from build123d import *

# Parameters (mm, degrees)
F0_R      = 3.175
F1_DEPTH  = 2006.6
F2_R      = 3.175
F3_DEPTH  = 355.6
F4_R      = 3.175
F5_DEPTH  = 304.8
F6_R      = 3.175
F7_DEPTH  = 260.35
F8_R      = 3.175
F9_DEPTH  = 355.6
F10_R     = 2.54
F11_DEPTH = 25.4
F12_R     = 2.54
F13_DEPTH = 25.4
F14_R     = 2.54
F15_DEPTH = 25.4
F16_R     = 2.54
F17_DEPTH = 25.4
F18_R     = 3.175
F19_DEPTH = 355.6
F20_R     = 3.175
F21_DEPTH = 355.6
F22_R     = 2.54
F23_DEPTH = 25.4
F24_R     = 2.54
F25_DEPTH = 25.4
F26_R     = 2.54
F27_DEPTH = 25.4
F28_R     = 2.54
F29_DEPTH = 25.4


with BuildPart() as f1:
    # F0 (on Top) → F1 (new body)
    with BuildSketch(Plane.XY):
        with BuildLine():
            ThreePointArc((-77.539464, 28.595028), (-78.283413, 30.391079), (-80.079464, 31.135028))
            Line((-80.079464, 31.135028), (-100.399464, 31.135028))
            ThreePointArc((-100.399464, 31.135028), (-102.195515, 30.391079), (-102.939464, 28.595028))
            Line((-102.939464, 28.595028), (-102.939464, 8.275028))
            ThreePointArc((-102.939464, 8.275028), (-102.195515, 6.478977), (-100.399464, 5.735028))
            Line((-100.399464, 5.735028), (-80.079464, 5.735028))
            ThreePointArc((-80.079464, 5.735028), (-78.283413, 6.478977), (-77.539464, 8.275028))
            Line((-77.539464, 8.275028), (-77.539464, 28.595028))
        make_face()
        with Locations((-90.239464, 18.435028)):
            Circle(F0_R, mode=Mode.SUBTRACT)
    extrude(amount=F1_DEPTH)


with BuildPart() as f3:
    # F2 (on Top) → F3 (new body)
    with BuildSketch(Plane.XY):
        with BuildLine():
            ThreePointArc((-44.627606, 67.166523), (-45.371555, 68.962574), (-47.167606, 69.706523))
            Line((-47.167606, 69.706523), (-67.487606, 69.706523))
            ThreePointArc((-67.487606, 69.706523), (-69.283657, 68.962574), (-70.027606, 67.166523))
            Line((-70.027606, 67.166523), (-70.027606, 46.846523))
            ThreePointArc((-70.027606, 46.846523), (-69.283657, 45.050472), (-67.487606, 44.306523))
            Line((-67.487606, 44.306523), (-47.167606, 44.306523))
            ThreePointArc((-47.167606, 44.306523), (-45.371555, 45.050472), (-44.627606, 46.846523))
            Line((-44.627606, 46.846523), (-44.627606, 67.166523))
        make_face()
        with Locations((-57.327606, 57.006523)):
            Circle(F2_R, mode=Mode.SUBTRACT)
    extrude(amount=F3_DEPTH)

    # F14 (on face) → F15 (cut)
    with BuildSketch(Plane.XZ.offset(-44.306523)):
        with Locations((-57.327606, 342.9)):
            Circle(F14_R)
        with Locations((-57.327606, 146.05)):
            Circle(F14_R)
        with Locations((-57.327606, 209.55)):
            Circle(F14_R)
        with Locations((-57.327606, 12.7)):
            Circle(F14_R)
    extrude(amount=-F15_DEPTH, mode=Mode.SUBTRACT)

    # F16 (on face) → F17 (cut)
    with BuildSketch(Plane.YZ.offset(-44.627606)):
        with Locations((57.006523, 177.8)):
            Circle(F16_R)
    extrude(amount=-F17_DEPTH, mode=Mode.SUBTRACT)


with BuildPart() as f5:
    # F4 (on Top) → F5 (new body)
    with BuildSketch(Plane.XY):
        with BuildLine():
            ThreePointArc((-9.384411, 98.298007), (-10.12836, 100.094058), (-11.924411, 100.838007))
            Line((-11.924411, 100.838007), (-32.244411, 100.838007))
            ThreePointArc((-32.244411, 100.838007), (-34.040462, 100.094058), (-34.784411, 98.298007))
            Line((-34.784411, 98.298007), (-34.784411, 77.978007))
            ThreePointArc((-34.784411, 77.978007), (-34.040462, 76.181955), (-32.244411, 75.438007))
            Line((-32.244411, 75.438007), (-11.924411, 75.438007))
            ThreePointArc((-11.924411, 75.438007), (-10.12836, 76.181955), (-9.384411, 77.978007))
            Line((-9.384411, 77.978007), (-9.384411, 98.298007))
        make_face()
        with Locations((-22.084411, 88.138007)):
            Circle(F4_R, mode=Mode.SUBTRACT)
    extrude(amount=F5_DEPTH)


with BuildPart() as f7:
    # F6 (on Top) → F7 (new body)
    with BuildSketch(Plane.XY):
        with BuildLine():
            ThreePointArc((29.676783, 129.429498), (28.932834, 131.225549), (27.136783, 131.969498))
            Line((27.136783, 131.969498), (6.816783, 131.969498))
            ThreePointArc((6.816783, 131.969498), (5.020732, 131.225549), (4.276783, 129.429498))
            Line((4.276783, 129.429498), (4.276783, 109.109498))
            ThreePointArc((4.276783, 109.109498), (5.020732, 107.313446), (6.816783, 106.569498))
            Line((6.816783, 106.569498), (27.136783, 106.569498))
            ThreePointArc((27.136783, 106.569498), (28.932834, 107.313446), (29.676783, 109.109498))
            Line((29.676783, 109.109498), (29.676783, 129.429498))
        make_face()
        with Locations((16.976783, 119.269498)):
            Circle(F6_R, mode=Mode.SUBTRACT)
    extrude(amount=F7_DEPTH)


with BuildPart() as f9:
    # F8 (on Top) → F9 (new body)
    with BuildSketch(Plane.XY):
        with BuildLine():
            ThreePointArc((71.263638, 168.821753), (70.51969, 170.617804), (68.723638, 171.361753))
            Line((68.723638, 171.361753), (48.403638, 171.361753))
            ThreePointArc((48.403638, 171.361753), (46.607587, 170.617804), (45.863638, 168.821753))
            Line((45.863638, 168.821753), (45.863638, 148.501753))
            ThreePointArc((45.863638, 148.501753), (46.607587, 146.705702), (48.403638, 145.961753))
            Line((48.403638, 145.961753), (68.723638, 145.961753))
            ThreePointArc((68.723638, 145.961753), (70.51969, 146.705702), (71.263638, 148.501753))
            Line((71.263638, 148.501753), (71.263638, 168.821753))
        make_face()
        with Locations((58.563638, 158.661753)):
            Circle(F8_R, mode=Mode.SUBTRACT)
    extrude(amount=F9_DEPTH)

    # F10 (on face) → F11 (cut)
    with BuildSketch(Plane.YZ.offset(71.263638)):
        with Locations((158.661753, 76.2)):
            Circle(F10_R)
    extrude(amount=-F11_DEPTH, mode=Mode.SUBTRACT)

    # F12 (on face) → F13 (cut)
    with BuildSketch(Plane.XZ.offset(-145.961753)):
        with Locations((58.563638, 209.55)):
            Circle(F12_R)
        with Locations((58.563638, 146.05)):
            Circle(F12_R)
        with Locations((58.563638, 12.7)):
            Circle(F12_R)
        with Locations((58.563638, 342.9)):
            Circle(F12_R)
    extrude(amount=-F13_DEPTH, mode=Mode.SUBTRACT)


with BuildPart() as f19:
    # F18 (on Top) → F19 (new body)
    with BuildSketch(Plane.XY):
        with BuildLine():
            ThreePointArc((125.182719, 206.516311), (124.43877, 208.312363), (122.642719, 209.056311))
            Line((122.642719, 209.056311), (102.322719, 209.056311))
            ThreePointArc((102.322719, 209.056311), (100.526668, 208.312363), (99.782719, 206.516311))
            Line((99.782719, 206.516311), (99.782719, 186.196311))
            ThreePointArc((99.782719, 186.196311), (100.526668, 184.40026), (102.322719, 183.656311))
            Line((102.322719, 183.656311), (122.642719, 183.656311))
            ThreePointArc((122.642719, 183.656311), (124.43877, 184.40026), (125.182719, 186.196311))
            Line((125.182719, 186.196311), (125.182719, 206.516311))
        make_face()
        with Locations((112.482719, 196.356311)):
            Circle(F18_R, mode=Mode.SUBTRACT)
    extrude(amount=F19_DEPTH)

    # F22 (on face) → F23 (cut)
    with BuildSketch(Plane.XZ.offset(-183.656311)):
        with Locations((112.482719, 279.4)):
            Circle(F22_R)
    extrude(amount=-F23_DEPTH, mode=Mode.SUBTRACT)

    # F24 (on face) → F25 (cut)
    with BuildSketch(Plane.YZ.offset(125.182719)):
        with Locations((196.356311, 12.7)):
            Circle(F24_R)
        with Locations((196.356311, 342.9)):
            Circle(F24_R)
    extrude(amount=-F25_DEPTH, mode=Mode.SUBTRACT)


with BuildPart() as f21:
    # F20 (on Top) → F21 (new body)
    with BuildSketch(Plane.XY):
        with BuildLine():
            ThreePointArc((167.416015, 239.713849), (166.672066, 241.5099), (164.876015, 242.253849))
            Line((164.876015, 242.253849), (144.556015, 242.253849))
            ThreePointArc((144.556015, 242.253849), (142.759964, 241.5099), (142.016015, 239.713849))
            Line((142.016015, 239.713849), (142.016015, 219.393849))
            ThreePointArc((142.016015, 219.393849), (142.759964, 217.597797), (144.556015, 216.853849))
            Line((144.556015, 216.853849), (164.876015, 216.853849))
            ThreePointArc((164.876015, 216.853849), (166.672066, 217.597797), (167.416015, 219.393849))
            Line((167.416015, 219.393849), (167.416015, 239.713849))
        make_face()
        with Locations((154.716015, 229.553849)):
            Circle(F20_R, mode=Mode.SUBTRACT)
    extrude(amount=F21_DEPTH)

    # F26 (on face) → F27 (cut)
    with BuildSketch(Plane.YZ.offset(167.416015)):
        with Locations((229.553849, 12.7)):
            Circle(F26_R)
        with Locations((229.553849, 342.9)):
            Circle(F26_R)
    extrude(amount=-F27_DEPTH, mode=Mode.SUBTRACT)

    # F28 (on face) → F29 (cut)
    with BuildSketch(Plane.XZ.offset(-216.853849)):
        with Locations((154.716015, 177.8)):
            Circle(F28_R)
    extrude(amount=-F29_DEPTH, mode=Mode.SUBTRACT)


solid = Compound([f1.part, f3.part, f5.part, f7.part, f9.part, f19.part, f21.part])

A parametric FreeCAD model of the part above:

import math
import FreeCAD as App
import Part
import Sketcher
from FreeCAD import Vector
Q = App.Units.Quantity

doc = App.newDocument("Part")
body = doc.addObject("PartDesign::Body", "Body")

sketch1 = doc.addObject("Sketcher::SketchObject", "Sketch")
body.addObject(sketch1)
sketch1.AttachmentSupport = (doc.XY_Plane, [""])
sketch1.MapMode = "FlatFace"
sketch1.addGeometry(Part.ArcOfCircle(Part.Circle(Vector(-80.079465, 28.595027, 0), Vector(0, 0, 1), 2.540001), math.radians(0.000017), math.radians(89.999983)), False)
sketch1.addGeometry(Part.LineSegment(Vector(-80.079464, 31.135028, 0), Vector(-100.399464, 31.135028, 0)), False)
sketch1.addGeometry(Part.ArcOfCircle(Part.Circle(Vector(-100.399463, 28.595027, 0), Vector(0, 0, 1), 2.540001), math.radians(90.000017), math.radians(179.999983)), False)
sketch1.addGeometry(Part.LineSegment(Vector(-102.939464, 28.595028, 0), Vector(-102.939464, 8.275028, 0)), False)
sketch1.addGeometry(Part.ArcOfCircle(Part.Circle(Vector(-100.399463, 8.275029, 0), Vector(0, 0, 1), 2.540001), math.radians(-179.999983), math.radians(-90.000017)), False)
sketch1.addGeometry(Part.LineSegment(Vector(-100.399464, 5.735028, 0), Vector(-80.079464, 5.735028, 0)), False)
sketch1.addGeometry(Part.ArcOfCircle(Part.Circle(Vector(-80.079465, 8.275029, 0), Vector(0, 0, 1), 2.540001), math.radians(-89.999983), math.radians(-0.000017)), False)
sketch1.addGeometry(Part.LineSegment(Vector(-77.539464, 8.275028, 0), Vector(-77.539464, 28.595028, 0)), False)
sketch1.addGeometry(Part.Circle(Vector(-90.239464, 18.435028, 0), Vector(0, 0, 1), 3.175), False)
sketch1.addConstraint(Sketcher.Constraint("Tangent", 0, 2, 1, 1))
sketch1.addConstraint(Sketcher.Constraint("Tangent", 1, 2, 2, 1))
sketch1.addConstraint(Sketcher.Constraint("Tangent", 2, 2, 3, 1))
sketch1.addConstraint(Sketcher.Constraint("Tangent", 3, 2, 4, 1))
sketch1.addConstraint(Sketcher.Constraint("Tangent", 4, 2, 5, 1))
sketch1.addConstraint(Sketcher.Constraint("Tangent", 5, 2, 6, 1))
sketch1.addConstraint(Sketcher.Constraint("Tangent", 6, 2, 7, 1))
sketch1.addConstraint(Sketcher.Constraint("Tangent", 7, 2, 0, 1))
sketch1.addConstraint(Sketcher.Constraint("Horizontal", 1))
sketch1.addConstraint(Sketcher.Constraint("Vertical", 3))
sketch1.addConstraint(Sketcher.Constraint("Horizontal", 5))
sketch1.addConstraint(Sketcher.Constraint("Vertical", 7))
sketch1.addConstraint(Sketcher.Constraint("Equal", 0, 2))
sketch1.addConstraint(Sketcher.Constraint("Equal", 2, 4))
sketch1.addConstraint(Sketcher.Constraint("Equal", 4, 6))
sketch1.addConstraint(Sketcher.Constraint("Equal", 5, 3))
sketch1.addConstraint(Sketcher.Constraint("Radius", 0, Q("0.1 in")))
sketch1.addConstraint(Sketcher.Constraint("Diameter", 8, Q("0.25 in")))
sketch1.addConstraint(Sketcher.Constraint("DistanceX", 1, 2, 1, 1, Q("0.8 in")))
sketch1.addConstraint(Sketcher.Constraint("DistanceX", 4, 3, 8, 3, Q("0.4 in")))
sketch1.addConstraint(Sketcher.Constraint("DistanceY", 4, 3, 8, 3, Q("0.4 in")))
sketch1.addConstraint(Sketcher.Constraint("DistanceY", -1, 1, 4, 3, 8.275029))
sketch1.addConstraint(Sketcher.Constraint("DistanceX", 0, 3, -1, 1, 80.079465))
pad1 = doc.addObject("PartDesign::Pad", "Pad")
body.addObject(pad1)
pad1.Profile = sketch1
pad1.Length = Q("79 in")
body2 = doc.addObject("PartDesign::Body", "Body001")

sketch2 = doc.addObject("Sketcher::SketchObject", "Sketch001")
body2.addObject(sketch2)
sketch2.AttachmentSupport = (doc.getObject("XY_Plane001"), [""])
sketch2.MapMode = "FlatFace"
sketch2.addGeometry(Part.ArcOfCircle(Part.Circle(Vector(-47.167607, 67.166522, 0), Vector(0, 0, 1), 2.540001), math.radians(0.000017), math.radians(89.999983)), False)
sketch2.addGeometry(Part.LineSegment(Vector(-47.167606, 69.706523, 0), Vector(-67.487606, 69.706523, 0)), False)
sketch2.addGeometry(Part.ArcOfCircle(Part.Circle(Vector(-67.487605, 67.166522, 0), Vector(0, 0, 1), 2.540001), math.radians(90.000017), math.radians(179.999983)), False)
sketch2.addGeometry(Part.LineSegment(Vector(-70.027606, 67.166523, 0), Vector(-70.027606, 46.846523, 0)), False)
sketch2.addGeometry(Part.ArcOfCircle(Part.Circle(Vector(-67.487605, 46.846524, 0), Vector(0, 0, 1), 2.540001), math.radians(-179.999983), math.radians(-90.000017)), False)
sketch2.addGeometry(Part.LineSegment(Vector(-67.487606, 44.306523, 0), Vector(-47.167606, 44.306523, 0)), False)
sketch2.addGeometry(Part.ArcOfCircle(Part.Circle(Vector(-47.167607, 46.846524, 0), Vector(0, 0, 1), 2.540001), math.radians(-89.999983), math.radians(-0.000017)), False)
sketch2.addGeometry(Part.LineSegment(Vector(-44.627606, 46.846523, 0), Vector(-44.627606, 67.166523, 0)), False)
sketch2.addGeometry(Part.Circle(Vector(-57.327606, 57.006523, 0), Vector(0, 0, 1), 3.175), False)
sketch2.addConstraint(Sketcher.Constraint("Tangent", 0, 2, 1, 1))
sketch2.addConstraint(Sketcher.Constraint("Tangent", 1, 2, 2, 1))
sketch2.addConstraint(Sketcher.Constraint("Tangent", 2, 2, 3, 1))
sketch2.addConstraint(Sketcher.Constraint("Tangent", 3, 2, 4, 1))
sketch2.addConstraint(Sketcher.Constraint("Tangent", 4, 2, 5, 1))
sketch2.addConstraint(Sketcher.Constraint("Tangent", 5, 2, 6, 1))
sketch2.addConstraint(Sketcher.Constraint("Tangent", 6, 2, 7, 1))
sketch2.addConstraint(Sketcher.Constraint("Tangent", 7, 2, 0, 1))
sketch2.addConstraint(Sketcher.Constraint("Horizontal", 1))
sketch2.addConstraint(Sketcher.Constraint("Vertical", 3))
sketch2.addConstraint(Sketcher.Constraint("Horizontal", 5))
sketch2.addConstraint(Sketcher.Constraint("Vertical", 7))
sketch2.addConstraint(Sketcher.Constraint("Equal", 0, 2))
sketch2.addConstraint(Sketcher.Constraint("Equal", 2, 4))
sketch2.addConstraint(Sketcher.Constraint("Equal", 4, 6))
sketch2.addConstraint(Sketcher.Constraint("Equal", 5, 3))
sketch2.addConstraint(Sketcher.Constraint("Radius", 0, Q("0.1 in")))
sketch2.addConstraint(Sketcher.Constraint("Diameter", 8, Q("0.25 in")))
sketch2.addConstraint(Sketcher.Constraint("DistanceX", 1, 2, 1, 1, Q("0.8 in")))
sketch2.addConstraint(Sketcher.Constraint("DistanceX", 2, 3, 8, 3, Q("0.4 in")))
sketch2.addConstraint(Sketcher.Constraint("DistanceY", 8, 3, 2, 3, Q("0.4 in")))
sketch2.addConstraint(Sketcher.Constraint("DistanceX", 0, 3, -1, 1, 47.167607))
sketch2.addConstraint(Sketcher.Constraint("DistanceY", -1, 1, 0, 3, 67.166522))
pad2 = doc.addObject("PartDesign::Pad", "Pad001")
body2.addObject(pad2)
pad2.Profile = sketch2
pad2.Length = Q("14 in")

sketch3 = doc.addObject("Sketcher::SketchObject", "Sketch002")
body2.addObject(sketch3)
sketch3.AttachmentSupport = (doc.getObject("XZ_Plane001"), [""])
sketch3.MapMode = "FlatFace"
sketch3.AttachmentOffset = App.Placement(Vector(0, 0, -44.306523), App.Rotation())
sketch3.addGeometry(Part.Circle(Vector(-57.327606, 342.9, 0), Vector(0, 0, 1), 2.54), False)
sketch3.addGeometry(Part.Circle(Vector(-57.327606, 146.05, 0), Vector(0, 0, 1), 2.54), False)
sketch3.addGeometry(Part.Circle(Vector(-57.327606, 209.55, 0), Vector(0, 0, 1), 2.54), False)
sketch3.addGeometry(Part.Circle(Vector(-57.327606, 12.7, 0), Vector(0, 0, 1), 2.54), False)
sketch3.addConstraint(Sketcher.Constraint("Equal", 0, 1))
sketch3.addConstraint(Sketcher.Constraint("Equal", 1, 2))
sketch3.addConstraint(Sketcher.Constraint("Equal", 2, 3))
sketch3.addConstraint(Sketcher.Constraint("Vertical", 0, 3, 1, 3))
sketch3.addConstraint(Sketcher.Constraint("Vertical", 1, 3, 2, 3))
sketch3.addConstraint(Sketcher.Constraint("Vertical", 2, 3, 3, 3))
sketch3.addConstraint(Sketcher.Constraint("Diameter", 0, Q("0.2 in")))
sketch3.addConstraint(Sketcher.Constraint("DistanceY", 3, 3, 0, 3, Q("13 in")))
sketch3.addConstraint(Sketcher.Constraint("DistanceY", -1, 1, 0, 3, Q("13.5 in")))
sketch3.addConstraint(Sketcher.Constraint("DistanceY", 1, 3, 2, 3, Q("2.5 in")))
sketch3.addConstraint(Sketcher.Constraint("DistanceY", -1, 1, 1, 3, Q("5.75 in")))
sketch3.addConstraint(Sketcher.Constraint("DistanceX", 0, 3, -1, 1, 57.327606))
pocket1 = doc.addObject("PartDesign::Pocket", "Pocket")
body2.addObject(pocket1)
pocket1.Profile = sketch3
pocket1.Length = Q("1 in")

sketch4 = doc.addObject("Sketcher::SketchObject", "Sketch003")
body2.addObject(sketch4)
sketch4.AttachmentSupport = (doc.getObject("YZ_Plane001"), [""])
sketch4.MapMode = "FlatFace"
sketch4.AttachmentOffset = App.Placement(Vector(0, 0, -44.627606), App.Rotation())
sketch4.addGeometry(Part.Circle(Vector(57.006523, 177.8, 0), Vector(0, 0, 1), 2.54), False)
sketch4.addConstraint(Sketcher.Constraint("Diameter", 0, Q("0.2 in")))
sketch4.addConstraint(Sketcher.Constraint("DistanceY", -1, 1, 0, 3, Q("7 in")))
sketch4.addConstraint(Sketcher.Constraint("DistanceX", -1, 1, 0, 3, 57.006523))
pocket2 = doc.addObject("PartDesign::Pocket", "Pocket001")
body2.addObject(pocket2)
pocket2.Profile = sketch4
pocket2.Length = Q("1 in")
body3 = doc.addObject("PartDesign::Body", "Body002")

sketch5 = doc.addObject("Sketcher::SketchObject", "Sketch004")
body3.addObject(sketch5)
sketch5.AttachmentSupport = (doc.getObject("XY_Plane002"), [""])
sketch5.MapMode = "FlatFace"
sketch5.addGeometry(Part.ArcOfCircle(Part.Circle(Vector(-11.924412, 98.298006, 0), Vector(0, 0, 1), 2.540001), math.radians(0.000017), math.radians(89.999983)), False)
sketch5.addGeometry(Part.LineSegment(Vector(-11.924411, 100.838007, 0), Vector(-32.244411, 100.838007, 0)), False)
sketch5.addGeometry(Part.ArcOfCircle(Part.Circle(Vector(-32.24441, 98.298006, 0), Vector(0, 0, 1), 2.540001), math.radians(90.000017), math.radians(179.999983)), False)
sketch5.addGeometry(Part.LineSegment(Vector(-34.784411, 98.298007, 0), Vector(-34.784411, 77.978007, 0)), False)
sketch5.addGeometry(Part.ArcOfCircle(Part.Circle(Vector(-32.244412, 77.978006, 0), Vector(0, 0, 1), 2.539999), math.radians(179.999979), math.radians(270.000021)), False)
sketch5.addGeometry(Part.LineSegment(Vector(-32.244411, 75.438007, 0), Vector(-11.924411, 75.438007, 0)), False)
sketch5.addGeometry(Part.ArcOfCircle(Part.Circle(Vector(-11.92441, 77.978006, 0), Vector(0, 0, 1), 2.539999), math.radians(-90.000021), math.radians(0.000021)), False)
sketch5.addGeometry(Part.LineSegment(Vector(-9.384411, 77.978007, 0), Vector(-9.384411, 98.298007, 0)), False)
sketch5.addGeometry(Part.Circle(Vector(-22.084411, 88.138007, 0), Vector(0, 0, 1), 3.175), False)
sketch5.addConstraint(Sketcher.Constraint("Tangent", 0, 2, 1, 1))
sketch5.addConstraint(Sketcher.Constraint("Tangent", 1, 2, 2, 1))
sketch5.addConstraint(Sketcher.Constraint("Tangent", 2, 2, 3, 1))
sketch5.addConstraint(Sketcher.Constraint("Tangent", 3, 2, 4, 1))
sketch5.addConstraint(Sketcher.Constraint("Tangent", 4, 2, 5, 1))
sketch5.addConstraint(Sketcher.Constraint("Tangent", 5, 2, 6, 1))
sketch5.addConstraint(Sketcher.Constraint("Tangent", 6, 2, 7, 1))
sketch5.addConstraint(Sketcher.Constraint("Tangent", 7, 2, 0, 1))
sketch5.addConstraint(Sketcher.Constraint("Horizontal", 1))
sketch5.addConstraint(Sketcher.Constraint("Vertical", 3))
sketch5.addConstraint(Sketcher.Constraint("Horizontal", 5))
sketch5.addConstraint(Sketcher.Constraint("Vertical", 7))
sketch5.addConstraint(Sketcher.Constraint("Equal", 0, 2))
sketch5.addConstraint(Sketcher.Constraint("Equal", 2, 4))
sketch5.addConstraint(Sketcher.Constraint("Equal", 4, 6))
sketch5.addConstraint(Sketcher.Constraint("Equal", 5, 3))
sketch5.addConstraint(Sketcher.Constraint("Radius", 0, Q("0.1 in")))
sketch5.addConstraint(Sketcher.Constraint("Diameter", 8, Q("0.25 in")))
sketch5.addConstraint(Sketcher.Constraint("DistanceX", 1, 2, 1, 1, Q("0.8 in")))
sketch5.addConstraint(Sketcher.Constraint("DistanceX", 8, 3, 0, 3, Q("0.4 in")))
sketch5.addConstraint(Sketcher.Constraint("DistanceY", 8, 3, 0, 3, Q("0.4 in")))
sketch5.addConstraint(Sketcher.Constraint("DistanceX", 0, 3, -1, 1, 11.924412))
sketch5.addConstraint(Sketcher.Constraint("DistanceY", -1, 1, 0, 3, 98.298006))
pad3 = doc.addObject("PartDesign::Pad", "Pad002")
body3.addObject(pad3)
pad3.Profile = sketch5
pad3.Length = Q("12 in")
body4 = doc.addObject("PartDesign::Body", "Body003")

sketch6 = doc.addObject("Sketcher::SketchObject", "Sketch005")
body4.addObject(sketch6)
sketch6.AttachmentSupport = (doc.getObject("XY_Plane003"), [""])
sketch6.MapMode = "FlatFace"
sketch6.addGeometry(Part.ArcOfCircle(Part.Circle(Vector(27.136782, 129.429497, 0), Vector(0, 0, 1), 2.540001), math.radians(0.000017), math.radians(89.999983)), False)
sketch6.addGeometry(Part.LineSegment(Vector(27.136783, 131.969498, 0), Vector(6.816783, 131.969498, 0)), False)
sketch6.addGeometry(Part.ArcOfCircle(Part.Circle(Vector(6.816784, 129.429497, 0), Vector(0, 0, 1), 2.540001), math.radians(90.000017), math.radians(179.999983)), False)
sketch6.addGeometry(Part.LineSegment(Vector(4.276783, 129.429498, 0), Vector(4.276783, 109.109498, 0)), False)
sketch6.addGeometry(Part.ArcOfCircle(Part.Circle(Vector(6.816782, 109.109497, 0), Vector(0, 0, 1), 2.539999), math.radians(179.999979), math.radians(270.000021)), False)
sketch6.addGeometry(Part.LineSegment(Vector(6.816783, 106.569498, 0), Vector(27.136783, 106.569498, 0)), False)
sketch6.addGeometry(Part.ArcOfCircle(Part.Circle(Vector(27.136784, 109.109497, 0), Vector(0, 0, 1), 2.539999), math.radians(-90.000021), math.radians(0.000021)), False)
sketch6.addGeometry(Part.LineSegment(Vector(29.676783, 109.109498, 0), Vector(29.676783, 129.429498, 0)), False)
sketch6.addGeometry(Part.Circle(Vector(16.976783, 119.269498, 0), Vector(0, 0, 1), 3.175), False)
sketch6.addConstraint(Sketcher.Constraint("Tangent", 0, 2, 1, 1))
sketch6.addConstraint(Sketcher.Constraint("Tangent", 1, 2, 2, 1))
sketch6.addConstraint(Sketcher.Constraint("Tangent", 2, 2, 3, 1))
sketch6.addConstraint(Sketcher.Constraint("Tangent", 3, 2, 4, 1))
sketch6.addConstraint(Sketcher.Constraint("Tangent", 4, 2, 5, 1))
sketch6.addConstraint(Sketcher.Constraint("Tangent", 5, 2, 6, 1))
sketch6.addConstraint(Sketcher.Constraint("Tangent", 6, 2, 7, 1))
sketch6.addConstraint(Sketcher.Constraint("Tangent", 7, 2, 0, 1))
sketch6.addConstraint(Sketcher.Constraint("Horizontal", 1))
sketch6.addConstraint(Sketcher.Constraint("Vertical", 3))
sketch6.addConstraint(Sketcher.Constraint("Horizontal", 5))
sketch6.addConstraint(Sketcher.Constraint("Vertical", 7))
sketch6.addConstraint(Sketcher.Constraint("Equal", 0, 2))
sketch6.addConstraint(Sketcher.Constraint("Equal", 2, 4))
sketch6.addConstraint(Sketcher.Constraint("Equal", 4, 6))
sketch6.addConstraint(Sketcher.Constraint("Equal", 5, 3))
sketch6.addConstraint(Sketcher.Constraint("Radius", 0, Q("0.1 in")))
sketch6.addConstraint(Sketcher.Constraint("Diameter", 8, Q("0.25 in")))
sketch6.addConstraint(Sketcher.Constraint("DistanceX", 1, 2, 1, 1, Q("0.8 in")))
sketch6.addConstraint(Sketcher.Constraint("DistanceX", 8, 3, 0, 3, Q("0.4 in")))
sketch6.addConstraint(Sketcher.Constraint("DistanceY", 8, 3, 0, 3, Q("0.4 in")))
sketch6.addConstraint(Sketcher.Constraint("DistanceY", -1, 1, 8, 3, 119.269498))
sketch6.addConstraint(Sketcher.Constraint("DistanceX", -1, 1, 0, 3, 27.136782))
pad4 = doc.addObject("PartDesign::Pad", "Pad003")
body4.addObject(pad4)
pad4.Profile = sketch6
pad4.Length = Q("10.25 in")
body5 = doc.addObject("PartDesign::Body", "Body004")

sketch7 = doc.addObject("Sketcher::SketchObject", "Sketch006")
body5.addObject(sketch7)
sketch7.AttachmentSupport = (doc.getObject("XY_Plane004"), [""])
sketch7.MapMode = "FlatFace"
sketch7.addGeometry(Part.ArcOfCircle(Part.Circle(Vector(68.723639, 168.821754, 0), Vector(0, 0, 1), 2.539999), math.radians(-0.000021), math.radians(90.000021)), False)
sketch7.addGeometry(Part.LineSegment(Vector(68.723638, 171.361753, 0), Vector(48.403638, 171.361753, 0)), False)
sketch7.addGeometry(Part.ArcOfCircle(Part.Circle(Vector(48.403639, 168.821752, 0), Vector(0, 0, 1), 2.540001), math.radians(90.000017), math.radians(179.999983)), False)
sketch7.addGeometry(Part.LineSegment(Vector(45.863638, 168.821753, 0), Vector(45.863638, 148.501753, 0)), False)
sketch7.addGeometry(Part.ArcOfCircle(Part.Circle(Vector(48.403639, 148.501754, 0), Vector(0, 0, 1), 2.540001), math.radians(-179.999983), math.radians(-90.000017)), False)
sketch7.addGeometry(Part.LineSegment(Vector(48.403638, 145.961753, 0), Vector(68.723638, 145.961753, 0)), False)
sketch7.addGeometry(Part.ArcOfCircle(Part.Circle(Vector(68.723639, 148.501752, 0), Vector(0, 0, 1), 2.539999), math.radians(-90.000021), math.radians(0.000021)), False)
sketch7.addGeometry(Part.LineSegment(Vector(71.263638, 148.501753, 0), Vector(71.263638, 168.821753, 0)), False)
sketch7.addGeometry(Part.Circle(Vector(58.563638, 158.661753, 0), Vector(0, 0, 1), 3.175), False)
sketch7.addConstraint(Sketcher.Constraint("Tangent", 0, 2, 1, 1))
sketch7.addConstraint(Sketcher.Constraint("Tangent", 1, 2, 2, 1))
sketch7.addConstraint(Sketcher.Constraint("Tangent", 2, 2, 3, 1))
sketch7.addConstraint(Sketcher.Constraint("Tangent", 3, 2, 4, 1))
sketch7.addConstraint(Sketcher.Constraint("Tangent", 4, 2, 5, 1))
sketch7.addConstraint(Sketcher.Constraint("Tangent", 5, 2, 6, 1))
sketch7.addConstraint(Sketcher.Constraint("Tangent", 6, 2, 7, 1))
sketch7.addConstraint(Sketcher.Constraint("Tangent", 7, 2, 0, 1))
sketch7.addConstraint(Sketcher.Constraint("Horizontal", 1))
sketch7.addConstraint(Sketcher.Constraint("Vertical", 3))
sketch7.addConstraint(Sketcher.Constraint("Horizontal", 5))
sketch7.addConstraint(Sketcher.Constraint("Vertical", 7))
sketch7.addConstraint(Sketcher.Constraint("Equal", 0, 2))
sketch7.addConstraint(Sketcher.Constraint("Equal", 2, 4))
sketch7.addConstraint(Sketcher.Constraint("Equal", 4, 6))
sketch7.addConstraint(Sketcher.Constraint("Equal", 5, 3))
sketch7.addConstraint(Sketcher.Constraint("Radius", 0, Q("0.1 in")))
sketch7.addConstraint(Sketcher.Constraint("Diameter", 8, Q("0.25 in")))
sketch7.addConstraint(Sketcher.Constraint("DistanceX", 1, 2, 1, 1, Q("0.8 in")))
sketch7.addConstraint(Sketcher.Constraint("DistanceX", 2, 3, 8, 3, Q("0.4 in")))
sketch7.addConstraint(Sketcher.Constraint("DistanceY", 8, 3, 2, 3, Q("0.4 in")))
sketch7.addConstraint(Sketcher.Constraint("DistanceX", -1, 1, 0, 3, 68.723639))
sketch7.addConstraint(Sketcher.Constraint("DistanceY", -1, 1, 0, 3, 168.821754))
pad5 = doc.addObject("PartDesign::Pad", "Pad004")
body5.addObject(pad5)
pad5.Profile = sketch7
pad5.Length = Q("14 in")

sketch8 = doc.addObject("Sketcher::SketchObject", "Sketch007")
body5.addObject(sketch8)
sketch8.AttachmentSupport = (doc.getObject("YZ_Plane004"), [""])
sketch8.MapMode = "FlatFace"
sketch8.AttachmentOffset = App.Placement(Vector(0, 0, 71.263638), App.Rotation())
sketch8.addGeometry(Part.Circle(Vector(158.661753, 76.2, 0), Vector(0, 0, 1), 2.54), False)
sketch8.addConstraint(Sketcher.Constraint("Diameter", 0, Q("0.2 in")))
sketch8.addConstraint(Sketcher.Constraint("DistanceY", -1, 1, 0, 3, Q("3 in")))
sketch8.addConstraint(Sketcher.Constraint("DistanceX", -1, 1, 0, 3, 158.661753))
pocket3 = doc.addObject("PartDesign::Pocket", "Pocket002")
body5.addObject(pocket3)
pocket3.Profile = sketch8
pocket3.Length = Q("1 in")

sketch9 = doc.addObject("Sketcher::SketchObject", "Sketch008")
body5.addObject(sketch9)
sketch9.AttachmentSupport = (doc.getObject("XZ_Plane004"), [""])
sketch9.MapMode = "FlatFace"
sketch9.AttachmentOffset = App.Placement(Vector(0, 0, -145.961753), App.Rotation())
sketch9.addGeometry(Part.Circle(Vector(58.563638, 209.55, 0), Vector(0, 0, 1), 2.54), False)
sketch9.addGeometry(Part.Circle(Vector(58.563638, 146.05, 0), Vector(0, 0, 1), 2.54), False)
sketch9.addGeometry(Part.Circle(Vector(58.563638, 12.7, 0), Vector(0, 0, 1), 2.54), False)
sketch9.addGeometry(Part.Circle(Vector(58.563638, 342.9, 0), Vector(0, 0, 1), 2.54), False)
sketch9.addConstraint(Sketcher.Constraint("Equal", 0, 1))
sketch9.addConstraint(Sketcher.Constraint("Equal", 1, 2))
sketch9.addConstraint(Sketcher.Constraint("Equal", 2, 3))
sketch9.addConstraint(Sketcher.Constraint("Vertical", 0, 3, 1, 3))
sketch9.addConstraint(Sketcher.Constraint("Vertical", 1, 3, 2, 3))
sketch9.addConstraint(Sketcher.Constraint("Vertical", 2, 3, 3, 3))
sketch9.addConstraint(Sketcher.Constraint("Diameter", 0, Q("0.2 in")))
sketch9.addConstraint(Sketcher.Constraint("DistanceY", 2, 3, 3, 3, Q("13 in")))
sketch9.addConstraint(Sketcher.Constraint("DistanceY", -1, 1, 2, 3, Q("0.5 in")))
sketch9.addConstraint(Sketcher.Constraint("DistanceY", 1, 3, 0, 3, Q("2.5 in")))
sketch9.addConstraint(Sketcher.Constraint("DistanceY", -1, 1, 0, 3, Q("8.25 in")))
sketch9.addConstraint(Sketcher.Constraint("DistanceX", -1, 1, 0, 3, 58.563638))
pocket4 = doc.addObject("PartDesign::Pocket", "Pocket003")
body5.addObject(pocket4)
pocket4.Profile = sketch9
pocket4.Length = Q("1 in")
body6 = doc.addObject("PartDesign::Body", "Body005")

sketch10 = doc.addObject("Sketcher::SketchObject", "Sketch009")
body6.addObject(sketch10)
sketch10.AttachmentSupport = (doc.getObject("XY_Plane005"), [""])
sketch10.MapMode = "FlatFace"
sketch10.addGeometry(Part.ArcOfCircle(Part.Circle(Vector(122.64272, 206.516312, 0), Vector(0, 0, 1), 2.539999), math.radians(-0.000021), math.radians(90.000021)), False)
sketch10.addGeometry(Part.LineSegment(Vector(122.642719, 209.056311, 0), Vector(102.322719, 209.056311, 0)), False)
sketch10.addGeometry(Part.ArcOfCircle(Part.Circle(Vector(102.322718, 206.516312, 0), Vector(0, 0, 1), 2.539999), math.radians(89.999979), math.radians(180.000021)), False)
sketch10.addGeometry(Part.LineSegment(Vector(99.782719, 206.516311, 0), Vector(99.782719, 186.196311, 0)), False)
sketch10.addGeometry(Part.ArcOfCircle(Part.Circle(Vector(102.32272, 186.196312, 0), Vector(0, 0, 1), 2.540001), math.radians(-179.999983), math.radians(-90.000017)), False)
sketch10.addGeometry(Part.LineSegment(Vector(102.322719, 183.656311, 0), Vector(122.642719, 183.656311, 0)), False)
sketch10.addGeometry(Part.ArcOfCircle(Part.Circle(Vector(122.642718, 186.196312, 0), Vector(0, 0, 1), 2.540001), math.radians(-89.999983), math.radians(-0.000017)), False)
sketch10.addGeometry(Part.LineSegment(Vector(125.182719, 186.196311, 0), Vector(125.182719, 206.516311, 0)), False)
sketch10.addGeometry(Part.Circle(Vector(112.482719, 196.356311, 0), Vector(0, 0, 1), 3.175), False)
sketch10.addConstraint(Sketcher.Constraint("Tangent", 0, 2, 1, 1))
sketch10.addConstraint(Sketcher.Constraint("Tangent", 1, 2, 2, 1))
sketch10.addConstraint(Sketcher.Constraint("Tangent", 2, 2, 3, 1))
sketch10.addConstraint(Sketcher.Constraint("Tangent", 3, 2, 4, 1))
sketch10.addConstraint(Sketcher.Constraint("Tangent", 4, 2, 5, 1))
sketch10.addConstraint(Sketcher.Constraint("Tangent", 5, 2, 6, 1))
sketch10.addConstraint(Sketcher.Constraint("Tangent", 6, 2, 7, 1))
sketch10.addConstraint(Sketcher.Constraint("Tangent", 7, 2, 0, 1))
sketch10.addConstraint(Sketcher.Constraint("Horizontal", 1))
sketch10.addConstraint(Sketcher.Constraint("Vertical", 3))
sketch10.addConstraint(Sketcher.Constraint("Horizontal", 5))
sketch10.addConstraint(Sketcher.Constraint("Vertical", 7))
sketch10.addConstraint(Sketcher.Constraint("Equal", 0, 2))
sketch10.addConstraint(Sketcher.Constraint("Equal", 2, 4))
sketch10.addConstraint(Sketcher.Constraint("Equal", 4, 6))
sketch10.addConstraint(Sketcher.Constraint("Equal", 5, 3))
sketch10.addConstraint(Sketcher.Constraint("Radius", 0, Q("0.1 in")))
sketch10.addConstraint(Sketcher.Constraint("Diameter", 8, Q("0.25 in")))
sketch10.addConstraint(Sketcher.Constraint("DistanceX", 1, 2, 1, 1, Q("0.8 in")))
sketch10.addConstraint(Sketcher.Constraint("DistanceX", 4, 3, 8, 3, Q("0.4 in")))
sketch10.addConstraint(Sketcher.Constraint("DistanceY", 4, 3, 8, 3, Q("0.4 in")))
sketch10.addConstraint(Sketcher.Constraint("DistanceX", -1, 1, 0, 3, 122.64272))
sketch10.addConstraint(Sketcher.Constraint("DistanceY", -1, 1, 0, 3, 206.516312))
pad6 = doc.addObject("PartDesign::Pad", "Pad005")
body6.addObject(pad6)
pad6.Profile = sketch10
pad6.Length = Q("14 in")

sketch11 = doc.addObject("Sketcher::SketchObject", "Sketch010")
body6.addObject(sketch11)
sketch11.AttachmentSupport = (doc.getObject("XZ_Plane005"), [""])
sketch11.MapMode = "FlatFace"
sketch11.AttachmentOffset = App.Placement(Vector(0, 0, -183.656311), App.Rotation())
sketch11.addGeometry(Part.Circle(Vector(112.482719, 279.4, 0), Vector(0, 0, 1), 2.54), False)
sketch11.addConstraint(Sketcher.Constraint("Diameter", 0, Q("0.2 in")))
sketch11.addConstraint(Sketcher.Constraint("DistanceY", -1, 1, 0, 3, Q("11 in")))
sketch11.addConstraint(Sketcher.Constraint("DistanceX", -1, 1, 0, 3, 112.482719))
pocket5 = doc.addObject("PartDesign::Pocket", "Pocket004")
body6.addObject(pocket5)
pocket5.Profile = sketch11
pocket5.Length = Q("1 in")

sketch12 = doc.addObject("Sketcher::SketchObject", "Sketch011")
body6.addObject(sketch12)
sketch12.AttachmentSupport = (doc.getObject("YZ_Plane005"), [""])
sketch12.MapMode = "FlatFace"
sketch12.AttachmentOffset = App.Placement(Vector(0, 0, 125.182719), App.Rotation())
sketch12.addGeometry(Part.Circle(Vector(196.356311, 12.7, 0), Vector(0, 0, 1), 2.54), False)
sketch12.addGeometry(Part.Circle(Vector(196.356311, 342.9, 0), Vector(0, 0, 1), 2.54), False)
sketch12.addConstraint(Sketcher.Constraint("Equal", 0, 1))
sketch12.addConstraint(Sketcher.Constraint("Vertical", 0, 3, 1, 3))
sketch12.addConstraint(Sketcher.Constraint("Diameter", 0, Q("0.2 in")))
sketch12.addConstraint(Sketcher.Constraint("DistanceY", 0, 3, 1, 3, Q("13 in")))
sketch12.addConstraint(Sketcher.Constraint("DistanceY", -1, 1, 0, 3, Q("0.5 in")))
sketch12.addConstraint(Sketcher.Constraint("DistanceX", -1, 1, 0, 3, 196.356311))
pocket6 = doc.addObject("PartDesign::Pocket", "Pocket005")
body6.addObject(pocket6)
pocket6.Profile = sketch12
pocket6.Length = Q("1 in")
body7 = doc.addObject("PartDesign::Body", "Body006")

sketch13 = doc.addObject("Sketcher::SketchObject", "Sketch012")
body7.addObject(sketch13)
sketch13.AttachmentSupport = (doc.getObject("XY_Plane006"), [""])
sketch13.MapMode = "FlatFace"
sketch13.addGeometry(Part.ArcOfCircle(Part.Circle(Vector(164.876014, 239.713848, 0), Vector(0, 0, 1), 2.540001), math.radians(0.000017), math.radians(89.999983)), False)
sketch13.addGeometry(Part.LineSegment(Vector(164.876015, 242.253849, 0), Vector(144.556015, 242.253849, 0)), False)
sketch13.addGeometry(Part.ArcOfCircle(Part.Circle(Vector(144.556016, 239.713848, 0), Vector(0, 0, 1), 2.540001), math.radians(90.000017), math.radians(179.999983)), False)
sketch13.addGeometry(Part.LineSegment(Vector(142.016015, 239.713849, 0), Vector(142.016015, 219.393849, 0)), False)
sketch13.addGeometry(Part.ArcOfCircle(Part.Circle(Vector(144.556014, 219.393848, 0), Vector(0, 0, 1), 2.539999), math.radians(179.999979), math.radians(270.000021)), False)
sketch13.addGeometry(Part.LineSegment(Vector(144.556015, 216.853849, 0), Vector(164.876015, 216.853849, 0)), False)
sketch13.addGeometry(Part.ArcOfCircle(Part.Circle(Vector(164.876016, 219.393848, 0), Vector(0, 0, 1), 2.539999), math.radians(-90.000021), math.radians(0.000021)), False)
sketch13.addGeometry(Part.LineSegment(Vector(167.416015, 219.393849, 0), Vector(167.416015, 239.713849, 0)), False)
sketch13.addGeometry(Part.Circle(Vector(154.716015, 229.553849, 0), Vector(0, 0, 1), 3.175), False)
sketch13.addConstraint(Sketcher.Constraint("Tangent", 0, 2, 1, 1))
sketch13.addConstraint(Sketcher.Constraint("Tangent", 1, 2, 2, 1))
sketch13.addConstraint(Sketcher.Constraint("Tangent", 2, 2, 3, 1))
sketch13.addConstraint(Sketcher.Constraint("Tangent", 3, 2, 4, 1))
sketch13.addConstraint(Sketcher.Constraint("Tangent", 4, 2, 5, 1))
sketch13.addConstraint(Sketcher.Constraint("Tangent", 5, 2, 6, 1))
sketch13.addConstraint(Sketcher.Constraint("Tangent", 6, 2, 7, 1))
sketch13.addConstraint(Sketcher.Constraint("Tangent", 7, 2, 0, 1))
sketch13.addConstraint(Sketcher.Constraint("Horizontal", 1))
sketch13.addConstraint(Sketcher.Constraint("Vertical", 3))
sketch13.addConstraint(Sketcher.Constraint("Horizontal", 5))
sketch13.addConstraint(Sketcher.Constraint("Vertical", 7))
sketch13.addConstraint(Sketcher.Constraint("Equal", 0, 2))
sketch13.addConstraint(Sketcher.Constraint("Equal", 2, 4))
sketch13.addConstraint(Sketcher.Constraint("Equal", 4, 6))
sketch13.addConstraint(Sketcher.Constraint("Equal", 5, 3))
sketch13.addConstraint(Sketcher.Constraint("Radius", 0, Q("0.1 in")))
sketch13.addConstraint(Sketcher.Constraint("Diameter", 8, Q("0.25 in")))
sketch13.addConstraint(Sketcher.Constraint("DistanceX", 1, 2, 1, 1, Q("0.8 in")))
sketch13.addConstraint(Sketcher.Constraint("DistanceX", 8, 3, 0, 3, Q("0.4 in")))
sketch13.addConstraint(Sketcher.Constraint("DistanceY", 8, 3, 0, 3, Q("0.4 in")))
sketch13.addConstraint(Sketcher.Constraint("DistanceY", -1, 1, 0, 3, 239.713848))
sketch13.addConstraint(Sketcher.Constraint("DistanceX", -1, 1, 0, 3, 164.876014))
pad7 = doc.addObject("PartDesign::Pad", "Pad006")
body7.addObject(pad7)
pad7.Profile = sketch13
pad7.Length = Q("14 in")

sketch14 = doc.addObject("Sketcher::SketchObject", "Sketch013")
body7.addObject(sketch14)
sketch14.AttachmentSupport = (doc.getObject("YZ_Plane006"), [""])
sketch14.MapMode = "FlatFace"
sketch14.AttachmentOffset = App.Placement(Vector(0, 0, 167.416015), App.Rotation())
sketch14.addGeometry(Part.Circle(Vector(229.553849, 12.7, 0), Vector(0, 0, 1), 2.54), False)
sketch14.addGeometry(Part.Circle(Vector(229.553849, 342.9, 0), Vector(0, 0, 1), 2.54), False)
sketch14.addConstraint(Sketcher.Constraint("Equal", 0, 1))
sketch14.addConstraint(Sketcher.Constraint("Vertical", 0, 3, 1, 3))
sketch14.addConstraint(Sketcher.Constraint("Diameter", 0, Q("0.2 in")))
sketch14.addConstraint(Sketcher.Constraint("DistanceY", 0, 3, 1, 3, Q("13 in")))
sketch14.addConstraint(Sketcher.Constraint("DistanceY", -1, 1, 0, 3, Q("0.5 in")))
sketch14.addConstraint(Sketcher.Constraint("DistanceX", -1, 1, 0, 3, 229.553849))
pocket7 = doc.addObject("PartDesign::Pocket", "Pocket006")
body7.addObject(pocket7)
pocket7.Profile = sketch14
pocket7.Length = Q("1 in")

sketch15 = doc.addObject("Sketcher::SketchObject", "Sketch014")
body7.addObject(sketch15)
sketch15.AttachmentSupport = (doc.getObject("XZ_Plane006"), [""])
sketch15.MapMode = "FlatFace"
sketch15.AttachmentOffset = App.Placement(Vector(0, 0, -216.853849), App.Rotation())
sketch15.addGeometry(Part.Circle(Vector(154.716015, 177.8, 0), Vector(0, 0, 1), 2.54), False)
sketch15.addConstraint(Sketcher.Constraint("Diameter", 0, Q("0.2 in")))
sketch15.addConstraint(Sketcher.Constraint("DistanceY", -1, 1, 0, 3, Q("7 in")))
sketch15.addConstraint(Sketcher.Constraint("DistanceX", -1, 1, 0, 3, 154.716015))
pocket8 = doc.addObject("PartDesign::Pocket", "Pocket007")
body7.addObject(pocket8)
pocket8.Profile = sketch15
pocket8.Length = Q("1 in")

doc.recompute()
